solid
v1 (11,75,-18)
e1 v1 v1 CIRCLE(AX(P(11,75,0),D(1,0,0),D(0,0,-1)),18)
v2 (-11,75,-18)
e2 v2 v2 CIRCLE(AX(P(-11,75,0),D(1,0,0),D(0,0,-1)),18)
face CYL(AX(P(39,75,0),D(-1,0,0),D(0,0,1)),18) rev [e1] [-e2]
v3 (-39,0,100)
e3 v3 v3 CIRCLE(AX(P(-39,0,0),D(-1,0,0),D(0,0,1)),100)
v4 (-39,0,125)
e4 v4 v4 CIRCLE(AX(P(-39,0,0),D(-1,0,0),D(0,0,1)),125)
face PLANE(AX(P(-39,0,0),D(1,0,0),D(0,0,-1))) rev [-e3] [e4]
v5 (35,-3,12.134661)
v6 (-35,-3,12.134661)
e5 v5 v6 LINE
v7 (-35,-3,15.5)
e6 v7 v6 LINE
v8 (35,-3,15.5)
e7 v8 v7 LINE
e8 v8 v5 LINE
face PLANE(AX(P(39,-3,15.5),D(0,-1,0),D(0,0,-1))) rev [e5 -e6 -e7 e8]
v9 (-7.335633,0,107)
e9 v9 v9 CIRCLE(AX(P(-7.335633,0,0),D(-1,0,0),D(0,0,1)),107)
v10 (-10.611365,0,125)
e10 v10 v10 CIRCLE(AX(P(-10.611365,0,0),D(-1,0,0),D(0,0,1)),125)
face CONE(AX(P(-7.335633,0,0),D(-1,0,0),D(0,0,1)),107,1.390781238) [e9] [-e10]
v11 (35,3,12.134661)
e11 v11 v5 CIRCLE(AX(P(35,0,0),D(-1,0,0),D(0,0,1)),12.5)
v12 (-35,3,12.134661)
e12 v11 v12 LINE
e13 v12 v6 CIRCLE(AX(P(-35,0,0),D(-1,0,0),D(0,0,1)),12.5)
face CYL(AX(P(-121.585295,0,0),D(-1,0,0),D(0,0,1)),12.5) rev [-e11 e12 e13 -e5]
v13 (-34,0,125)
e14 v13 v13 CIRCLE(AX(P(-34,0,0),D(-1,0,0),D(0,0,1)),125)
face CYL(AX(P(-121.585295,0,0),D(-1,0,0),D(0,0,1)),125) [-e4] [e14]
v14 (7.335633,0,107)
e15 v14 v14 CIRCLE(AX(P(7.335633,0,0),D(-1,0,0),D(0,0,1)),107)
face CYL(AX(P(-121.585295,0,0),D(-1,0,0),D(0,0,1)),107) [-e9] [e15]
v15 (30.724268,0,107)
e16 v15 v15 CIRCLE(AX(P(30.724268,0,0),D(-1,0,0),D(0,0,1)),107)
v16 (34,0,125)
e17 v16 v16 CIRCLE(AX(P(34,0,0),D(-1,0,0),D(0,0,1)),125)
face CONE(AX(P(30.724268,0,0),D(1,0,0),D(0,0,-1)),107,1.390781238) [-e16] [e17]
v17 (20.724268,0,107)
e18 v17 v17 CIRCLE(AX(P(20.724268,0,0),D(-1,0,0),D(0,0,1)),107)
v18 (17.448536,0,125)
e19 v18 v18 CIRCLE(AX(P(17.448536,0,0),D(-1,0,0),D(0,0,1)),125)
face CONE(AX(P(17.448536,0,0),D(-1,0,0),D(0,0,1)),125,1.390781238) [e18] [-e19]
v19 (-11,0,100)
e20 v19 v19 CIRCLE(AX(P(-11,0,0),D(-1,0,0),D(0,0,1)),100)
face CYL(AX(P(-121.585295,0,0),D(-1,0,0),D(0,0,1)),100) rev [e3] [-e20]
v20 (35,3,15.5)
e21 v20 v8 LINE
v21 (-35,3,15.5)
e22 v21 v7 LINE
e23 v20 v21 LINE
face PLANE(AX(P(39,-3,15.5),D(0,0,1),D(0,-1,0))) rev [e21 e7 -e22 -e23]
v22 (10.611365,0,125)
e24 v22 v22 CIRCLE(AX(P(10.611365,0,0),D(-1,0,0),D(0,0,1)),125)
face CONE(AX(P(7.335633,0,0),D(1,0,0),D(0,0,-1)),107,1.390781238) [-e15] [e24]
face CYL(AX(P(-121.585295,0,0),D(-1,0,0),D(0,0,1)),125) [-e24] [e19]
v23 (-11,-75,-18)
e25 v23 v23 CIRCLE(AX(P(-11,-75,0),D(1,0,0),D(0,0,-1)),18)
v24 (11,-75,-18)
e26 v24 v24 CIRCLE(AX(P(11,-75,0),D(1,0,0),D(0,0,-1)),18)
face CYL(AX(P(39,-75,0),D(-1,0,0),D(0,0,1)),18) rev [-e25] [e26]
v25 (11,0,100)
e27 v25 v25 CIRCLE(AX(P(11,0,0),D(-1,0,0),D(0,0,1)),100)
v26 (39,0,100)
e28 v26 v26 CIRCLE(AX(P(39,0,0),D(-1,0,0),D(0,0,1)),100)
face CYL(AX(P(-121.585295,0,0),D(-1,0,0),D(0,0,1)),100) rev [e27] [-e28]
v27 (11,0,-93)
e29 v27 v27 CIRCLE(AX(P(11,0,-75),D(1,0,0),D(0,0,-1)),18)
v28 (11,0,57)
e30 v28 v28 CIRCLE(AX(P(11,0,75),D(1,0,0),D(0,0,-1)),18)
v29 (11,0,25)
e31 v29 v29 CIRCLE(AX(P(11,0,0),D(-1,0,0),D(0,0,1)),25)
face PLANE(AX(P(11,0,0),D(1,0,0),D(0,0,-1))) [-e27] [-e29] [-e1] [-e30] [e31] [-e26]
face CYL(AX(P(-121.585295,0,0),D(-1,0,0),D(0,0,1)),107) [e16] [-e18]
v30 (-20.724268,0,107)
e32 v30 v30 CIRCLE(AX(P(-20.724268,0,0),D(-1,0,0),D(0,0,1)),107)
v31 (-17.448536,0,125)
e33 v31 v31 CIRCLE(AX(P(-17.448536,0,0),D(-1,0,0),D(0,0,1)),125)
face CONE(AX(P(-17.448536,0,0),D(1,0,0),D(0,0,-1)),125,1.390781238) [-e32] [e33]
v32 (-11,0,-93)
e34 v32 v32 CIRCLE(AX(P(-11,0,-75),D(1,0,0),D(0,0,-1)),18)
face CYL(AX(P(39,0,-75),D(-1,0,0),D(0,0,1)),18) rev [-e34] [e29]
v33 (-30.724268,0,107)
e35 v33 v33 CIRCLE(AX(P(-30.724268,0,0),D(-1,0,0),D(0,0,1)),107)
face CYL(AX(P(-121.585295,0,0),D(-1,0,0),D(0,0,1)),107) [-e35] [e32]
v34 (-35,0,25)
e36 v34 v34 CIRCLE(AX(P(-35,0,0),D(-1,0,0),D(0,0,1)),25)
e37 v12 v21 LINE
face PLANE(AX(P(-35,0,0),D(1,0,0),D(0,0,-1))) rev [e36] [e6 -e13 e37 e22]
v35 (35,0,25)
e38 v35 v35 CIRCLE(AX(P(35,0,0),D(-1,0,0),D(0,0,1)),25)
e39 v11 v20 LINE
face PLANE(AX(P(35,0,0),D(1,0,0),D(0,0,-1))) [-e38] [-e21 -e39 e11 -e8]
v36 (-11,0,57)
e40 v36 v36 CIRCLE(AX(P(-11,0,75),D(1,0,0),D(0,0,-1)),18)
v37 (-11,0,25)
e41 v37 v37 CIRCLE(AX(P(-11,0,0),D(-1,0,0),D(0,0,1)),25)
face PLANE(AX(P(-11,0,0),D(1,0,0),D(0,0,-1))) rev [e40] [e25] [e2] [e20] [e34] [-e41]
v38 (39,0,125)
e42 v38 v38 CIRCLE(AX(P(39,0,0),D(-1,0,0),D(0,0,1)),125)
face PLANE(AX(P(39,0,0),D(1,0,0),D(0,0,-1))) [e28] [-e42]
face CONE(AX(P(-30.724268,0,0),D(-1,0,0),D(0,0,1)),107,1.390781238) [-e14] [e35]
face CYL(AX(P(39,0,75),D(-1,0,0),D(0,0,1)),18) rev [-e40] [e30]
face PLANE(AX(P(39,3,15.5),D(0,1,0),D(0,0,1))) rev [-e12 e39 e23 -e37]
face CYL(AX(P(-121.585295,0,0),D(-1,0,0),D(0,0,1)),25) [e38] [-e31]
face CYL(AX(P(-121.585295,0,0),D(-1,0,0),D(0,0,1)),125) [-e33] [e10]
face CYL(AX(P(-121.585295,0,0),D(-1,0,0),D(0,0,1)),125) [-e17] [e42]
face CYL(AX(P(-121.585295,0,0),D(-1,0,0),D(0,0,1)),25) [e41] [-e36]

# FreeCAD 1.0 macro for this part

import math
import FreeCAD as App
import Part
import Sketcher

doc = App.newDocument("Part")
body = doc.addObject("PartDesign::Body", "Body")

# Sketch on XY plane
sketch1 = body.newObject("Sketcher::SketchObject", "Sketch")
sketch1.AttachmentSupport = (doc.getObject("XY_Plane"), [""])
sketch1.MapMode = "FlatFace"
sketch1.addGeometry(Part.LineSegment(App.Vector(21, 107, 0), App.Vector(17, 125, 0)), False)
sketch1.addGeometry(Part.LineSegment(App.Vector(17, 125, 0), App.Vector(11, 125, 0)), False)
sketch1.addGeometry(Part.LineSegment(App.Vector(11, 125, 0), App.Vector(7, 107, 0)), False)
sketch1.addGeometry(Part.LineSegment(App.Vector(7, 107, 0), App.Vector(-7, 107, 0)), False)
sketch1.addGeometry(Part.LineSegment(App.Vector(-7, 107, 0), App.Vector(-11, 125, 0)), False)
sketch1.addGeometry(Part.LineSegment(App.Vector(-11, 125, 0), App.Vector(-17, 125, 0)), False)
sketch1.addGeometry(Part.LineSegment(App.Vector(-17, 125, 0), App.Vector(-21, 107, 0)), False)
sketch1.addGeometry(Part.LineSegment(App.Vector(-21, 107, 0), App.Vector(-31, 107, 0)), False)
sketch1.addGeometry(Part.LineSegment(App.Vector(-31, 107, 0), App.Vector(-34, 125, 0)), False)
sketch1.addGeometry(Part.LineSegment(App.Vector(-34, 125, 0), App.Vector(-39, 125, 0)), False)
sketch1.addGeometry(Part.LineSegment(App.Vector(-39, 125, 0), App.Vector(-39, 100, 0)), False)
sketch1.addGeometry(Part.LineSegment(App.Vector(-39, 100, 0), App.Vector(-11, 100, 0)), False)
sketch1.addGeometry(Part.LineSegment(App.Vector(-11, 100, 0), App.Vector(-11, 25, 0)), False)
sketch1.addGeometry(Part.LineSegment(App.Vector(-11, 25, 0), App.Vector(-35, 25, 0)), False)
sketch1.addGeometry(Part.LineSegment(App.Vector(-35, 25, 0), App.Vector(-35, 12, 0)), False)
sketch1.addGeometry(Part.LineSegment(App.Vector(-35, 12, 0), App.Vector(35, 12, 0)), False)
sketch1.addGeometry(Part.LineSegment(App.Vector(35, 12, 0), App.Vector(35, 25, 0)), False)
sketch1.addGeometry(Part.LineSegment(App.Vector(35, 25, 0), App.Vector(11, 25, 0)), False)
sketch1.addGeometry(Part.LineSegment(App.Vector(11, 25, 0), App.Vector(11, 100, 0)), False)
sketch1.addGeometry(Part.LineSegment(App.Vector(11, 100, 0), App.Vector(39, 100, 0)), False)
sketch1.addGeometry(Part.LineSegment(App.Vector(39, 100, 0), App.Vector(39, 125, 0)), False)
sketch1.addGeometry(Part.LineSegment(App.Vector(39, 125, 0), App.Vector(34, 125, 0)), False)
sketch1.addGeometry(Part.LineSegment(App.Vector(34, 125, 0), App.Vector(31, 107, 0)), False)
sketch1.addGeometry(Part.LineSegment(App.Vector(31, 107, 0), App.Vector(21, 107, 0)), False)
sketch1.addConstraint(Sketcher.Constraint("Coincident", 0, 2, 1, 1))
sketch1.addConstraint(Sketcher.Constraint("Coincident", 1, 2, 2, 1))
sketch1.addConstraint(Sketcher.Constraint("Coincident", 2, 2, 3, 1))
sketch1.addConstraint(Sketcher.Constraint("Coincident", 3, 2, 4, 1))
sketch1.addConstraint(Sketcher.Constraint("Coincident", 4, 2, 5, 1))
sketch1.addConstraint(Sketcher.Constraint("Coincident", 5, 2, 6, 1))
sketch1.addConstraint(Sketcher.Constraint("Coincident", 6, 2, 7, 1))
sketch1.addConstraint(Sketcher.Constraint("Coincident", 7, 2, 8, 1))
sketch1.addConstraint(Sketcher.Constraint("Coincident", 8, 2, 9, 1))
sketch1.addConstraint(Sketcher.Constraint("Coincident", 9, 2, 10, 1))
sketch1.addConstraint(Sketcher.Constraint("Coincident", 10, 2, 11, 1))
sketch1.addConstraint(Sketcher.Constraint("Coincident", 11, 2, 12, 1))
sketch1.addConstraint(Sketcher.Constraint("Coincident", 12, 2, 13, 1))
sketch1.addConstraint(Sketcher.Constraint("Coincident", 13, 2, 14, 1))
sketch1.addConstraint(Sketcher.Constraint("Coincident", 14, 2, 15, 1))
sketch1.addConstraint(Sketcher.Constraint("Coincident", 15, 2, 16, 1))
sketch1.addConstraint(Sketcher.Constraint("Coincident", 16, 2, 17, 1))
sketch1.addConstraint(Sketcher.Constraint("Coincident", 17, 2, 18, 1))
sketch1.addConstraint(Sketcher.Constraint("Coincident", 18, 2, 19, 1))
sketch1.addConstraint(Sketcher.Constraint("Coincident", 19, 2, 20, 1))
sketch1.addConstraint(Sketcher.Constraint("Coincident", 20, 2, 21, 1))
sketch1.addConstraint(Sketcher.Constraint("Coincident", 21, 2, 22, 1))
sketch1.addConstraint(Sketcher.Constraint("Coincident", 22, 2, 23, 1))
sketch1.addConstraint(Sketcher.Constraint("Coincident", 23, 2, 0, 1))
sketch1.addConstraint(Sketcher.Constraint("Horizontal", 1))
sketch1.addConstraint(Sketcher.Constraint("Horizontal", 3))
sketch1.addConstraint(Sketcher.Constraint("Horizontal", 5))
sketch1.addConstraint(Sketcher.Constraint("Horizontal", 7))
sketch1.addConstraint(Sketcher.Constraint("Horizontal", 9))
sketch1.addConstraint(Sketcher.Constraint("Vertical", 10))
sketch1.addConstraint(Sketcher.Constraint("Horizontal", 11))
sketch1.addConstraint(Sketcher.Constraint("Vertical", 12))
sketch1.addConstraint(Sketcher.Constraint("Horizontal", 13))
sketch1.addConstraint(Sketcher.Constraint("Vertical", 14))
sketch1.addConstraint(Sketcher.Constraint("Horizontal", 15))
sketch1.addConstraint(Sketcher.Constraint("Vertical", 16))
sketch1.addConstraint(Sketcher.Constraint("Horizontal", 17))
sketch1.addConstraint(Sketcher.Constraint("Vertical", 18))
sketch1.addConstraint(Sketcher.Constraint("Horizontal", 19))
sketch1.addConstraint(Sketcher.Constraint("Vertical", 20))
sketch1.addConstraint(Sketcher.Constraint("Horizontal", 21))
sketch1.addConstraint(Sketcher.Constraint("Horizontal", 23))
sketch1.addConstraint(Sketcher.Constraint("Symmetric", 1, 2, 4, 2, -2))
sketch1.addConstraint(Sketcher.Constraint("Symmetric", 13, 2, 16, 2, -2))
sketch1.addConstraint(Sketcher.Constraint("Symmetric", 11, 2, 18, 2, -2))
sketch1.addConstraint(Sketcher.Constraint("Symmetric", 9, 2, 20, 2, -2))
sketch1.addConstraint(Sketcher.Constraint("Symmetric", 7, 2, 22, 2, -2))
sketch1.addConstraint(Sketcher.Constraint("Parallel", 0, 4))
sketch1.addConstraint(Sketcher.Constraint("Parallel", 2, 6))
sketch1.addConstraint(Sketcher.Constraint("Parallel", 4, 8))
sketch1.addConstraint(Sketcher.Constraint("Parallel", 6, 22))
sketch1.addConstraint(Sketcher.Constraint("Horizontal", 3, 2, 6, 2))
sketch1.addConstraint(Sketcher.Constraint("Horizontal", 5, 2, 8, 2))
sketch1.addConstraint(Sketcher.Constraint("Equal", 1, 5))
sketch1.addConstraint(Sketcher.Constraint("Equal", 9, 21))
sketch1.addConstraint(Sketcher.Constraint("DistanceX", 7, 2, 7, 1, 10.0))
sketch1.addConstraint(Sketcher.Constraint("DistanceX", 9, 2, 9, 1, 5.0))
sketch1.addConstraint(Sketcher.Constraint("DistanceX", 11, 1, 11, 2, 28.0))
sketch1.addConstraint(Sketcher.Constraint("DistanceX", 13, 2, 13, 1, 24.0))
sketch1.addConstraint(Sketcher.Constraint("DistanceX", 15, 1, 15, 2, 70.0))
sketch1.addConstraint(Sketcher.Constraint("DistanceY", 10, 2, 10, 1, 25.0))
sketch1.addConstraint(Sketcher.Constraint("DistanceY", 12, 2, 12, 1, 75.0))
sketch1.addConstraint(Sketcher.Constraint("DistanceY", 14, 2, 14, 1, 12.5))
sketch1.addConstraint(Sketcher.Constraint("DistanceY", -1, 1, 0, 2, 125.0))
sketch1.addConstraint(Sketcher.Constraint("DistanceY", -1, 1, 2, 2, 107.0))
sketch1.addConstraint(Sketcher.Constraint("DistanceX", 1, 2, 1, 1, 6.837171))
sketch1.addConstraint(Sketcher.Constraint("DistanceX", 4, 2, 0, 2, 28.059901))
revolution = body.newObject("PartDesign::Revolution", "Revolution")
revolution.Profile = sketch1
revolution.ReferenceAxis = (sketch1, ["H_Axis"])
revolution.Angle = 360

# Sketch on YZ plane
sketch2 = body.newObject("Sketcher::SketchObject", "Sketch001")
sketch2.AttachmentSupport = (doc.getObject("YZ_Plane"), [""])
sketch2.MapMode = "FlatFace"
sketch2.AttachmentOffset = App.Placement(App.Vector(0, 0, -11), App.Rotation())
sketch2.addGeometry(Part.Circle(App.Vector(75, 0, 0), App.Vector(0, 0, 1), 18), False)
sketch2.addGeometry(Part.Circle(App.Vector(0, 75, 0), App.Vector(0, 0, 1), 18), False)
sketch2.addGeometry(Part.Circle(App.Vector(-75, 0, 0), App.Vector(0, 0, 1), 18), False)
sketch2.addGeometry(Part.Circle(App.Vector(0, -75, 0), App.Vector(0, 0, 1), 18), False)
sketch2.addGeometry(Part.LineSegment(App.Vector(-3, 15.5, 0), App.Vector(3, 15.5, 0)), False)
sketch2.addGeometry(Part.LineSegment(App.Vector(3, 15.5, 0), App.Vector(3, 12.1, 0)), False)
sketch2.addGeometry(Part.ArcOfCircle(Part.Circle(App.Vector(0, 0, 0), App.Vector(0, 0, 1), 12.5), math.radians(104), math.radians(436)), False)
sketch2.addGeometry(Part.LineSegment(App.Vector(-3, 12.1, 0), App.Vector(-3, 15.5, 0)), False)
sketch2.addConstraint(Sketcher.Constraint("Coincident", 4, 2, 5, 1))
sketch2.addConstraint(Sketcher.Constraint("Coincident", 5, 2, 6, 2))
sketch2.addConstraint(Sketcher.Constraint("Coincident", 6, 1, 7, 1))
sketch2.addConstraint(Sketcher.Constraint("Coincident", 7, 2, 4, 1))
sketch2.addConstraint(Sketcher.Constraint("Horizontal", 4))
sketch2.addConstraint(Sketcher.Constraint("Vertical", 5))
sketch2.addConstraint(Sketcher.Constraint("Vertical", 7))
sketch2.addConstraint(Sketcher.Constraint("Coincident", 6, 3, -1, 1))
sketch2.addConstraint(Sketcher.Constraint("Equal", 0, 1))
sketch2.addConstraint(Sketcher.Constraint("Equal", 1, 2))
sketch2.addConstraint(Sketcher.Constraint("Equal", 2, 3))
sketch2.addConstraint(Sketcher.Constraint("Symmetric", 0, 3, 2, 3, -1, 1))
sketch2.addConstraint(Sketcher.Constraint("Symmetric", 1, 3, 3, 3, -1, 1))
sketch2.addConstraint(Sketcher.Constraint("PointOnObject", 0, 3, -1))
sketch2.addConstraint(Sketcher.Constraint("PointOnObject", 1, 3, -2))
sketch2.addConstraint(Sketcher.Constraint("Horizontal", 5, 2, 6, 1))
sketch2.addConstraint(Sketcher.Constraint("Diameter", 0, 36.0))
sketch2.addConstraint(Sketcher.Constraint("Radius", 6, 12.5))
sketch2.addConstraint(Sketcher.Constraint("DistanceX", 4, 1, 4, 2, 6.0))
sketch2.addConstraint(Sketcher.Constraint("DistanceX", -1, 1, 0, 3, 75.0))
sketch2.addConstraint(Sketcher.Constraint("DistanceY", -1, 1, 1, 3, 75.0))
sketch2.addConstraint(Sketcher.Constraint("DistanceY", -1, 1, 4, 2, 15.5))
pocket1 = body.newObject("PartDesign::Pocket", "Pocket")
pocket1.Profile = sketch2
pocket1.Type = "ThroughAll"
pocket1.Midplane = True

doc.recompute()
